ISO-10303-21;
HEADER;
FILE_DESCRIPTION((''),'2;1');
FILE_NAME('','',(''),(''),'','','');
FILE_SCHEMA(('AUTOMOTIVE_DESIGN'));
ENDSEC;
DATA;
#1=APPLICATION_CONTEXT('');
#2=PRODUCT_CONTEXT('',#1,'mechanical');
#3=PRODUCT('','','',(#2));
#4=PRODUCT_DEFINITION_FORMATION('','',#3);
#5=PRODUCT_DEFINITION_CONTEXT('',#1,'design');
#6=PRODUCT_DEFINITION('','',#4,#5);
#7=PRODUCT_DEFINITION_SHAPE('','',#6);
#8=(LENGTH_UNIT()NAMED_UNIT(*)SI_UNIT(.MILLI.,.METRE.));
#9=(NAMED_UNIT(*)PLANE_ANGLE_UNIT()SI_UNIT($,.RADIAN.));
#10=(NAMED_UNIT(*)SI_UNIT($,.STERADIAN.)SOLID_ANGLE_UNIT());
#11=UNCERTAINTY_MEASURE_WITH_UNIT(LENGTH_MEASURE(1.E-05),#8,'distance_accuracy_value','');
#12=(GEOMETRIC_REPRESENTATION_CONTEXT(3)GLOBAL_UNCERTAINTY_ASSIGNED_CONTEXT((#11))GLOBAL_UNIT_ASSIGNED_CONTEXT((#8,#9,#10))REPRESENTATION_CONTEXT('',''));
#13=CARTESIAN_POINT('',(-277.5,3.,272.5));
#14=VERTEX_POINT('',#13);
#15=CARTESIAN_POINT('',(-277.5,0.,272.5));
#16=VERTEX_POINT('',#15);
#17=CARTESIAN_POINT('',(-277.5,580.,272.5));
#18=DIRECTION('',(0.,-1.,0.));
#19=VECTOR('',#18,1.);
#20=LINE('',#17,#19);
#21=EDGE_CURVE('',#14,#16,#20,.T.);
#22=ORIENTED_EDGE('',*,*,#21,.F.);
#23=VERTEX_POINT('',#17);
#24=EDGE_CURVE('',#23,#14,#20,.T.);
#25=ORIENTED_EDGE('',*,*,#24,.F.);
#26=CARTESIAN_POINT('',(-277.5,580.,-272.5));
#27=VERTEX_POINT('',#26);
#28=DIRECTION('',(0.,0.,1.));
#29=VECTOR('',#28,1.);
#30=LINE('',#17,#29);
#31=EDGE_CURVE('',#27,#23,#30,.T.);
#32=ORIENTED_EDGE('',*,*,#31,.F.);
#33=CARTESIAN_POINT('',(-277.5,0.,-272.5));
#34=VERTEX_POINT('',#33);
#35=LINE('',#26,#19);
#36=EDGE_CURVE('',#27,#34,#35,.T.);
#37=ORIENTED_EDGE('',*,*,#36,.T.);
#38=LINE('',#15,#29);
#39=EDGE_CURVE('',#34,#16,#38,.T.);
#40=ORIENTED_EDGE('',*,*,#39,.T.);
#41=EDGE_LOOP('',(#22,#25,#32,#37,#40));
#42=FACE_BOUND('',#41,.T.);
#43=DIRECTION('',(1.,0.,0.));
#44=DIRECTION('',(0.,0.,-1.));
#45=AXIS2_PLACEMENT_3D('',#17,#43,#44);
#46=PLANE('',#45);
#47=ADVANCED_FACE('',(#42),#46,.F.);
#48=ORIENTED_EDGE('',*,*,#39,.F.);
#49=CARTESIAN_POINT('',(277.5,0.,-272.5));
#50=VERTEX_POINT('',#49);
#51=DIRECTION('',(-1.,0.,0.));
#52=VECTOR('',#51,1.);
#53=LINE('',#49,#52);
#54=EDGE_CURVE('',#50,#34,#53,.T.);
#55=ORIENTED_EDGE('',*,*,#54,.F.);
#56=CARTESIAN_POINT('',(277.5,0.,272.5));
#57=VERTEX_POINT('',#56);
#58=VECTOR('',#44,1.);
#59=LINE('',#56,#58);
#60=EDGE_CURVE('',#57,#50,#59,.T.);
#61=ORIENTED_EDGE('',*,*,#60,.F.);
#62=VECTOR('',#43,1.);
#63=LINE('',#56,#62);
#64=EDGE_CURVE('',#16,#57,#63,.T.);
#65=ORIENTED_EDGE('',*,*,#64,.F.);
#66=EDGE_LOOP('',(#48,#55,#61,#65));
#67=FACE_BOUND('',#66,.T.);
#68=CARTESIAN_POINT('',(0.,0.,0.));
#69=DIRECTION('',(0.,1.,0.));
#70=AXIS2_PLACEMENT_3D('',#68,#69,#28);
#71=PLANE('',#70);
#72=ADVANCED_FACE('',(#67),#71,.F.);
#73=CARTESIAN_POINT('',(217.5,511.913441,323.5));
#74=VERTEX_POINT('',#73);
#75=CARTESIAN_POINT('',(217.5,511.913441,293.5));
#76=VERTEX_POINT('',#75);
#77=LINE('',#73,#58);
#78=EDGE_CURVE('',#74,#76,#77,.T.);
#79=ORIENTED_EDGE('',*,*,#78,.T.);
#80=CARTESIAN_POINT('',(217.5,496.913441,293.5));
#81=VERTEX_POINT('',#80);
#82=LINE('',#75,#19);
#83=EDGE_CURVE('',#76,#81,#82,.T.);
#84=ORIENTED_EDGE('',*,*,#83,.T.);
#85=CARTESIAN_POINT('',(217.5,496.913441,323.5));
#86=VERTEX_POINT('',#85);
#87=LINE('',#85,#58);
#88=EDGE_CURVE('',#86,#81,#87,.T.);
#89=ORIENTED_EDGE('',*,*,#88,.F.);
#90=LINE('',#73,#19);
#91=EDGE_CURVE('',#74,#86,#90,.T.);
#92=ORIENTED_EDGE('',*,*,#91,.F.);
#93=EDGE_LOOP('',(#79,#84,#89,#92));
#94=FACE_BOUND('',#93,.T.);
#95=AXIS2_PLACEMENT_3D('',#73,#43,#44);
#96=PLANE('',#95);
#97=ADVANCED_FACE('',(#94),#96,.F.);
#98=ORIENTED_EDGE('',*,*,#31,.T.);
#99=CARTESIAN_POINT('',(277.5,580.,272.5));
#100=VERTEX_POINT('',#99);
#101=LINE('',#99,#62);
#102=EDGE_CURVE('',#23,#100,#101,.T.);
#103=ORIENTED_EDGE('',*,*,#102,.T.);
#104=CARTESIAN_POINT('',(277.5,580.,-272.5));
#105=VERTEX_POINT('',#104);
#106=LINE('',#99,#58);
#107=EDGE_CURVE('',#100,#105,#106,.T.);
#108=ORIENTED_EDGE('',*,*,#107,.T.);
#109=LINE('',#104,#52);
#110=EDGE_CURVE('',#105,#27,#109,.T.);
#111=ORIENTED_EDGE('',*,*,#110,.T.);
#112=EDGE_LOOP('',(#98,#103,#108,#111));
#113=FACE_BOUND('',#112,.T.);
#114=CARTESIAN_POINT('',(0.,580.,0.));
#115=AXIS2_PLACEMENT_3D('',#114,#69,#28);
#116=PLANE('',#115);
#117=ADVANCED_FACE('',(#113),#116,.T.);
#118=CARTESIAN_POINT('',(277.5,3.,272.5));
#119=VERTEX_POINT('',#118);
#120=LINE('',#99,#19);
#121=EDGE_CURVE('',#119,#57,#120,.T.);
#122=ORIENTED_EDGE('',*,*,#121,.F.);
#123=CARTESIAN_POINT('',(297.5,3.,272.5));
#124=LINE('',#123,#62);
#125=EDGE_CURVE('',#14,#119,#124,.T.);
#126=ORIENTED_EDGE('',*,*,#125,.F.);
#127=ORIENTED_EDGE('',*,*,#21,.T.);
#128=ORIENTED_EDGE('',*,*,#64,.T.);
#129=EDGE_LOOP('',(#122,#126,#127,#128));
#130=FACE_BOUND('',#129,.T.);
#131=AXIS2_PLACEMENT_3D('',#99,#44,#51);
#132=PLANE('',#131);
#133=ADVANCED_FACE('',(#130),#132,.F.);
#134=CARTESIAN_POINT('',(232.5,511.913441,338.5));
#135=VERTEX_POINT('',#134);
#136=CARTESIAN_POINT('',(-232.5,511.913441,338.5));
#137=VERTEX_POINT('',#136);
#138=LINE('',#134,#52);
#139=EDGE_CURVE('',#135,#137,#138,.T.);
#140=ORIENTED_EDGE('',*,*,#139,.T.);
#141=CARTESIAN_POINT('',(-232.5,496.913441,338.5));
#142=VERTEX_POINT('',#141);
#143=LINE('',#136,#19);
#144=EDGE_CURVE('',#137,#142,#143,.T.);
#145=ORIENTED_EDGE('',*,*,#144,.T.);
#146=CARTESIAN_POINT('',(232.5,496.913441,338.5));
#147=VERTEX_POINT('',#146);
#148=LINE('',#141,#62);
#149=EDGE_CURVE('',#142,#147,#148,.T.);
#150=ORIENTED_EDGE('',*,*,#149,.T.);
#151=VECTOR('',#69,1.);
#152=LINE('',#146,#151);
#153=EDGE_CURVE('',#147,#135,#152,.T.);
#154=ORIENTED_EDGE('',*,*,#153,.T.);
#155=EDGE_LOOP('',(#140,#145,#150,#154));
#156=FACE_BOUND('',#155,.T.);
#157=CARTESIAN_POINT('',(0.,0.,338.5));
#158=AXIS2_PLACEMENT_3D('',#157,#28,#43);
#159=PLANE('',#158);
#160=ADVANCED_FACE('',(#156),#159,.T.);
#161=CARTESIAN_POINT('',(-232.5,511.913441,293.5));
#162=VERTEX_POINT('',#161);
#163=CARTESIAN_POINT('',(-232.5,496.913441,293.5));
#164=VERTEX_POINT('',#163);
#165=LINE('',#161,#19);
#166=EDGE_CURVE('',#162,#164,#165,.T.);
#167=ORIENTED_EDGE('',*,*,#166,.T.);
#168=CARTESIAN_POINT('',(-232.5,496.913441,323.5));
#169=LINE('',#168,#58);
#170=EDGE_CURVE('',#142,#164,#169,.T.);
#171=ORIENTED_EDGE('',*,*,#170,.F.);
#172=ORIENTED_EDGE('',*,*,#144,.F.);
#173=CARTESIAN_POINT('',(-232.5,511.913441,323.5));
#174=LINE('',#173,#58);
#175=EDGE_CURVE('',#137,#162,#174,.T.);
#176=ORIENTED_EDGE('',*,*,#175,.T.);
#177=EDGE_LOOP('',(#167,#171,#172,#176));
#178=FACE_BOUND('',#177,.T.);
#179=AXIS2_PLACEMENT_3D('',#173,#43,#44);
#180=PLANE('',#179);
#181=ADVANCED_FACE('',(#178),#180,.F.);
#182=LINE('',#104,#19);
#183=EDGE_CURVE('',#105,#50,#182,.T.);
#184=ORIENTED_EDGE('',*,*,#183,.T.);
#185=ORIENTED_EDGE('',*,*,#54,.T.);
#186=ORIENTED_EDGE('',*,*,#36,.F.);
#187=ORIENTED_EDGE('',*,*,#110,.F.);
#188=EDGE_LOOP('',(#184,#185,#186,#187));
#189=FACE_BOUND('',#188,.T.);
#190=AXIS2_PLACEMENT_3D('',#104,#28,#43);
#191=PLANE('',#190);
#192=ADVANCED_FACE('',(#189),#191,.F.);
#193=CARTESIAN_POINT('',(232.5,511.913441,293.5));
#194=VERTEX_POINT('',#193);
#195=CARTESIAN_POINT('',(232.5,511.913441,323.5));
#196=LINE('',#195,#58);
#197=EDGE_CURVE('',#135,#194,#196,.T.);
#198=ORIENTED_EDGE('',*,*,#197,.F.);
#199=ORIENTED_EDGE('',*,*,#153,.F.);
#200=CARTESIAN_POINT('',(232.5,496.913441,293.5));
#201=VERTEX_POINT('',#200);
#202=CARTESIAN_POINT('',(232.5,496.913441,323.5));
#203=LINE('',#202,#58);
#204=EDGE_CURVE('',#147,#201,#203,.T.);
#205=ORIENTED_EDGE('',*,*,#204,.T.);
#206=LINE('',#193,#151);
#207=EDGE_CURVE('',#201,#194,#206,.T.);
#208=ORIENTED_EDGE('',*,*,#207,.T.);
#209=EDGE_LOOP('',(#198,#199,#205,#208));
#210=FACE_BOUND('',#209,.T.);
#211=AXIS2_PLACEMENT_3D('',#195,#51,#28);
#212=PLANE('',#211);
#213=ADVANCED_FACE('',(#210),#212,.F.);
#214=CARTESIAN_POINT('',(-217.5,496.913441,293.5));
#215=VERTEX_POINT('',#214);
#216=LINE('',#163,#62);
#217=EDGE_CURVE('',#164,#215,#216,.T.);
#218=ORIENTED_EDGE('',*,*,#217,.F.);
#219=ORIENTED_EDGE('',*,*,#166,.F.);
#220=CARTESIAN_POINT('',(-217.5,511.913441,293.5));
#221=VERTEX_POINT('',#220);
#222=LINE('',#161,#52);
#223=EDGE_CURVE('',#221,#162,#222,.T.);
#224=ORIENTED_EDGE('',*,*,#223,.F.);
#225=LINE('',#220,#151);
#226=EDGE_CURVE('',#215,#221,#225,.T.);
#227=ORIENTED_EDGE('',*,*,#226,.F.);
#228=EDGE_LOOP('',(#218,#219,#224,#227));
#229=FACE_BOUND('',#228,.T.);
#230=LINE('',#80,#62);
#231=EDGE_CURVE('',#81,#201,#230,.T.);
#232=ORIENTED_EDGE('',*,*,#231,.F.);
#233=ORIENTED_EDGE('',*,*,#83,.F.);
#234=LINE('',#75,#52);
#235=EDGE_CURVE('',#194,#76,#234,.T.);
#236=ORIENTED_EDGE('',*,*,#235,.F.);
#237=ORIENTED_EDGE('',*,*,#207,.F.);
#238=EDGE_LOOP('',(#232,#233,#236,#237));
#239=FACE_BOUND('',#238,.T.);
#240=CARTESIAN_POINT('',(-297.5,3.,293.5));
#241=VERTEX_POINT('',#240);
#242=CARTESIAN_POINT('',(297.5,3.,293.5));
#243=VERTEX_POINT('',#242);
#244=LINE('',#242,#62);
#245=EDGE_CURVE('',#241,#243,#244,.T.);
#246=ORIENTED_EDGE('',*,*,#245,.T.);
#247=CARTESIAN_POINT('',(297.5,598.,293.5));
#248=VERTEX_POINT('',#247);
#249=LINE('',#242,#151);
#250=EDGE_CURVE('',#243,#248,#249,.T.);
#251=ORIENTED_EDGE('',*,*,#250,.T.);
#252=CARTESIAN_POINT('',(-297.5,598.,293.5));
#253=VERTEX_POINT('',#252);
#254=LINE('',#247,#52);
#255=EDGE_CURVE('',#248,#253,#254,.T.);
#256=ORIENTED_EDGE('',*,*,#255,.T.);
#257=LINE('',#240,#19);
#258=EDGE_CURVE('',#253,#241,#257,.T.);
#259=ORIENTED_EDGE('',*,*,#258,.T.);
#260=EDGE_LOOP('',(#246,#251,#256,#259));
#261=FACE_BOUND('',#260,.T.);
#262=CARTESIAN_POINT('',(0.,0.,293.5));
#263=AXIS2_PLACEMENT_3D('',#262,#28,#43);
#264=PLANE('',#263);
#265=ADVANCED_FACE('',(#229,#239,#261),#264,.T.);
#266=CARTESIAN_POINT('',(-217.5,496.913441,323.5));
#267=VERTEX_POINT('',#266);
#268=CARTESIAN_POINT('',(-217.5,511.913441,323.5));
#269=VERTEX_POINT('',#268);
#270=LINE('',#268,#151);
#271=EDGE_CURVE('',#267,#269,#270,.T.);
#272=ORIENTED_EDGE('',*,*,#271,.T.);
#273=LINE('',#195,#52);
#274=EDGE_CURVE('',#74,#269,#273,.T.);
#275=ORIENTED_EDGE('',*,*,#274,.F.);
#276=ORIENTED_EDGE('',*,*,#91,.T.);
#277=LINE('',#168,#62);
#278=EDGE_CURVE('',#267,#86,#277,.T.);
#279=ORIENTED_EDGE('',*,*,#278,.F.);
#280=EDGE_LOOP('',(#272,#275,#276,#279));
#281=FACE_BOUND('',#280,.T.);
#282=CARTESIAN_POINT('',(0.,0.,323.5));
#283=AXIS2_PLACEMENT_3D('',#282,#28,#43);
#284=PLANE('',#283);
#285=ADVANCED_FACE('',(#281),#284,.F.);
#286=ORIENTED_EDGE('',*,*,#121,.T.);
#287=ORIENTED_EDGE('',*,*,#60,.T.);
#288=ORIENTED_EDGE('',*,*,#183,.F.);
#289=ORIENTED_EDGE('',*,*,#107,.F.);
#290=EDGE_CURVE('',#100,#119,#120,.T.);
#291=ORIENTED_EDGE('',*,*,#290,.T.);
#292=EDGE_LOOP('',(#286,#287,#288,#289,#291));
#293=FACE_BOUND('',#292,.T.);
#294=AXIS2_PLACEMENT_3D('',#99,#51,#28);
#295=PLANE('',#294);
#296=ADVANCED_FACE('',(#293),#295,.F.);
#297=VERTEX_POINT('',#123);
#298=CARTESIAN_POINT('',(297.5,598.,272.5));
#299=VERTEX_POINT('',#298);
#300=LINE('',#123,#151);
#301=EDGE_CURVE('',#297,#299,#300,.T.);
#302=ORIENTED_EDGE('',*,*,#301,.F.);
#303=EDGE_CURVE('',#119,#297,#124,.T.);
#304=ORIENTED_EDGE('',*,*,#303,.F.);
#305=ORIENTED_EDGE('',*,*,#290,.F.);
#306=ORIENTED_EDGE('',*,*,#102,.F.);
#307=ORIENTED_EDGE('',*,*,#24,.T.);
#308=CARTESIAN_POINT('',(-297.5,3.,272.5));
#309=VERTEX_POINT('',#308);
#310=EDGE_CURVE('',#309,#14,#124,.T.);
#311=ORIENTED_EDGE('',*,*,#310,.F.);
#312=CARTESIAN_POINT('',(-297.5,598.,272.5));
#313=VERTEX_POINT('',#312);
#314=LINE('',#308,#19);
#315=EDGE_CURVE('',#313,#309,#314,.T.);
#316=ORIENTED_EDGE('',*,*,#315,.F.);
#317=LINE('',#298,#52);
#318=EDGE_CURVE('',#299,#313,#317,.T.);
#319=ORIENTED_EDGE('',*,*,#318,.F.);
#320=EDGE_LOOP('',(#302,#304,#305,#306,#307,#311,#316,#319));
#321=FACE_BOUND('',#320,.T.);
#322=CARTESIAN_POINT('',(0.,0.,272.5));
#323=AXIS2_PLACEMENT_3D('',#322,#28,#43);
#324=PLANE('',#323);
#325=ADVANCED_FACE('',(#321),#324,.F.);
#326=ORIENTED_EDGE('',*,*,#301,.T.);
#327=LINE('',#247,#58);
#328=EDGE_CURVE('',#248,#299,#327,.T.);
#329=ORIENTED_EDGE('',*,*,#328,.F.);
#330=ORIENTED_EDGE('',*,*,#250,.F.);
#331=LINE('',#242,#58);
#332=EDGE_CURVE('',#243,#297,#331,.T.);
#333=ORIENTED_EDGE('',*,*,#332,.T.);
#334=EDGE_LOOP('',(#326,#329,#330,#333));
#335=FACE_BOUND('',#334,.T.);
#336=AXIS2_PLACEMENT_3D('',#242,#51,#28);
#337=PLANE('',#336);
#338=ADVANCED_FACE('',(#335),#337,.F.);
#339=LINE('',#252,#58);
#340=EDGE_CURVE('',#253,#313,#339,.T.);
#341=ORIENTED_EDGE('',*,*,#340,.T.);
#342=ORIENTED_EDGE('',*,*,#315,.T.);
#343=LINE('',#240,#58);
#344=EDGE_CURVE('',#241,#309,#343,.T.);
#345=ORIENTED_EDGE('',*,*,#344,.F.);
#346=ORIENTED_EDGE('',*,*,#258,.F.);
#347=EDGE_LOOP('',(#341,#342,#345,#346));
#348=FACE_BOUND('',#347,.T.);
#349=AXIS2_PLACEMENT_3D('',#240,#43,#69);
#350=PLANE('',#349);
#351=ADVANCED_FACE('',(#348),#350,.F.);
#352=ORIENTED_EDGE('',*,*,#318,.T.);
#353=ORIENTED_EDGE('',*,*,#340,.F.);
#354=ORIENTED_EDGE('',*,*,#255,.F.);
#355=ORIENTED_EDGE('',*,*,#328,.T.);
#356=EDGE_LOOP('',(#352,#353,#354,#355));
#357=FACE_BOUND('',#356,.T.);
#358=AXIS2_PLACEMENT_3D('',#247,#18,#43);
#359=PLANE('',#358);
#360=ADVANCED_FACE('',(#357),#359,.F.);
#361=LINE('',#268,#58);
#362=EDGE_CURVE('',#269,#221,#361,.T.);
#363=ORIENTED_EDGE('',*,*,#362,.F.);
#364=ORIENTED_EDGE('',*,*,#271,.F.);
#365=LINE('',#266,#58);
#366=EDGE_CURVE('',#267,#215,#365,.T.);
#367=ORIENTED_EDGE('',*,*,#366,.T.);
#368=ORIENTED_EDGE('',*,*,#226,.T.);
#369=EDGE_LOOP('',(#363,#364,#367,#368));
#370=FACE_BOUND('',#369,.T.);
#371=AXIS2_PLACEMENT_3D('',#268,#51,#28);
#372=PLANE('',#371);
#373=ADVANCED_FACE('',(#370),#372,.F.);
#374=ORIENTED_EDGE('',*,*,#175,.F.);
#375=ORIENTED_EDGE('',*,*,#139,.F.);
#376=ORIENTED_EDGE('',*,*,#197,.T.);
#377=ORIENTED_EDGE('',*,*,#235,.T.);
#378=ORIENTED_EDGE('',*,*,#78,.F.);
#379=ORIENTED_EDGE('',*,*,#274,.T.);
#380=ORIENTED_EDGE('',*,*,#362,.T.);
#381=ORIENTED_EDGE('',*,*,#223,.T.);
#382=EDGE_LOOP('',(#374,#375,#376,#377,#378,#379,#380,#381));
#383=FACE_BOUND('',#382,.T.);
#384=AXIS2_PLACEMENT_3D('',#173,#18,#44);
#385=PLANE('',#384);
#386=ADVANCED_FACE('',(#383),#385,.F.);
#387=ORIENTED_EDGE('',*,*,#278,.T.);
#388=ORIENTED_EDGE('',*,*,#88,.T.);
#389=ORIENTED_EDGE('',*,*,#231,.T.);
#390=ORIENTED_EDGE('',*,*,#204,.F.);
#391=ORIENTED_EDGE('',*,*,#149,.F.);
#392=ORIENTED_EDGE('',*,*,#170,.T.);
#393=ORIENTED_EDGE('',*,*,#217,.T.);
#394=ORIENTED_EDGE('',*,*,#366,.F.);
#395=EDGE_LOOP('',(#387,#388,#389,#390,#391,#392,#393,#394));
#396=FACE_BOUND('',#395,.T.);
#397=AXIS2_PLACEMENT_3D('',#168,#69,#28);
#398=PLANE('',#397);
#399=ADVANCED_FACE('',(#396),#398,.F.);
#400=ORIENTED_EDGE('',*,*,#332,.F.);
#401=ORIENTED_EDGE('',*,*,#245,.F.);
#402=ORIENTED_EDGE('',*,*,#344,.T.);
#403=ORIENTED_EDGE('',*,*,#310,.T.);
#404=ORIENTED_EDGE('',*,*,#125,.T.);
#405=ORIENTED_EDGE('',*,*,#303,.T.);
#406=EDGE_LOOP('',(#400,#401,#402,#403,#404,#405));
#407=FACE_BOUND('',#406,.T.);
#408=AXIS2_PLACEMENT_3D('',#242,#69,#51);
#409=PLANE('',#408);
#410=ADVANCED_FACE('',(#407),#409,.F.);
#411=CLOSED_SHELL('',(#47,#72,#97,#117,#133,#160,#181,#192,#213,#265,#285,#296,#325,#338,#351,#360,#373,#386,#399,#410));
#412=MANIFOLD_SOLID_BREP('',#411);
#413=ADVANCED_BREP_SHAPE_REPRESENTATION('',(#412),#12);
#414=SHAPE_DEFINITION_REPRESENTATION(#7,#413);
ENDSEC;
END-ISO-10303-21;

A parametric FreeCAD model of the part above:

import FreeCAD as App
import Part
import Sketcher
from FreeCAD import Vector


def add_polygon(sketch, points):
    """Adds a closed chain of lines whose ends are joined by coincident constraints."""
    first, n = sketch.GeometryCount, len(points)
    for a, b in zip(points, points[1:] + points[:1]):
        sketch.addGeometry(Part.LineSegment(App.Vector(*a, 0), App.Vector(*b, 0)), False)
    for i in range(n):
        sketch.addConstraint(Sketcher.Constraint("Coincident", first + i, 2, first + (i + 1) % n, 1))

doc = App.newDocument("Part")
params = doc.addObject("Spreadsheet::Sheet", "Params")
for row, (alias, value) in enumerate([
    ("sketch1_width", "555 mm"),
    ("sketch1_height", "545 mm"),
    ("pad1_length", "580 mm"),
    ("sketch2_width", "595 mm"),
    ("pad2_length", "21 mm"),
    ("sketch3_width", "15 mm"),
    ("pad3_length", "30 mm"),
    ("sketch4_width", "465 mm"),
    ("sketch4_height", "15 mm"),
    ("pad4_length", "15 mm"),
], start=1):
    params.set(f"A{row}", alias)
    params.set(f"B{row}", "=" + value)
    params.setAlias(f"B{row}", alias)

body = doc.addObject("PartDesign::Body", "Body")

# Sketch on XZ plane
sketch1 = body.newObject("Sketcher::SketchObject", "Sketch")
sketch1.AttachmentSupport = (doc.getObject("XZ_Plane"), [""])
sketch1.MapMode = "FlatFace"
add_polygon(sketch1, [(-277.5, -272.5), (-277.5, 272.5), (277.5, 272.5), (277.5, -272.5)])  # lines 0-3
sketch1.addConstraint([
    Sketcher.Constraint("Vertical", 0),
    Sketcher.Constraint("Horizontal", 1),
    Sketcher.Constraint("Vertical", 2),
    Sketcher.Constraint("Horizontal", 3),
    Sketcher.Constraint("Symmetric", 0, 2, 2, 2, -1, 1),
    Sketcher.Constraint("DistanceX", 1, 1, 1, 2, 555.0),
    Sketcher.Constraint("DistanceY", 0, 1, 0, 2, 545.0),
])
sketch1.setExpression("Constraints[9]", "Params.sketch1_width")
sketch1.setExpression("Constraints[10]", "Params.sketch1_height")
pad1 = body.newObject("PartDesign::Pad", "Pad")
pad1.Profile = sketch1
pad1.setExpression("Length", "Params.pad1_length")
pad1.Reversed = True

# Sketch on XY plane
sketch2 = body.newObject("Sketcher::SketchObject", "Sketch001")
sketch2.AttachmentSupport = (doc.getObject("XY_Plane"), [""])
sketch2.MapMode = "FlatFace"
sketch2.AttachmentOffset = App.Placement(Vector(0, 0, 272.5), App.Rotation())
add_polygon(sketch2, [(-297.5, 598), (-297.5, 3), (297.5, 3), (297.5, 598)])  # lines 0-3
sketch2.addConstraint([
    Sketcher.Constraint("Vertical", 0),
    Sketcher.Constraint("Horizontal", 1),
    Sketcher.Constraint("Vertical", 2),
    Sketcher.Constraint("Horizontal", 3),
    Sketcher.Constraint("Equal", 3, 0),
    Sketcher.Constraint("DistanceX", 1, 1, 1, 2, 595.0),
    Sketcher.Constraint("DistanceY", -1, 1, 0, 2, 3.0),
    Sketcher.Constraint("DistanceX", 0, 2, -1, 1, 297.5),
])
sketch2.setExpression("Constraints[9]", "Params.sketch2_width")
pad2 = body.newObject("PartDesign::Pad", "Pad001")
pad2.Profile = sketch2
pad2.setExpression("Length", "Params.pad2_length")

# Sketch on XY plane
sketch3 = body.newObject("Sketcher::SketchObject", "Sketch002")
sketch3.AttachmentSupport = (doc.getObject("XY_Plane"), [""])
sketch3.MapMode = "FlatFace"
sketch3.AttachmentOffset = App.Placement(Vector(0, 0, 293.5), App.Rotation())
add_polygon(sketch3, [(-232.5, 511.913441), (-232.5, 496.913441), (-217.5, 496.913441), (-217.5, 511.913441)])  # lines 0-3
add_polygon(sketch3, [(217.5, 511.913441), (217.5, 496.913441), (232.5, 496.913441), (232.5, 511.913441)])  # lines 4-7
sketch3.addConstraint([
    Sketcher.Constraint("Vertical", 0),
    Sketcher.Constraint("Horizontal", 1),
    Sketcher.Constraint("Vertical", 2),
    Sketcher.Constraint("Horizontal", 3),
    Sketcher.Constraint("Vertical", 4),
    Sketcher.Constraint("Horizontal", 5),
    Sketcher.Constraint("Vertical", 6),
    Sketcher.Constraint("Horizontal", 7),
    Sketcher.Constraint("Symmetric", 1, 2, 4, 2, -2),
    Sketcher.Constraint("Symmetric", 3, 2, 6, 2, -2),
    Sketcher.Constraint("Equal", 7, 0),
    Sketcher.Constraint("DistanceX", 1, 1, 1, 2, 15.0),
    Sketcher.Constraint("DistanceX", 1, 2, 4, 2, 435.0),
    Sketcher.Constraint("DistanceY", -1, 1, 0, 2, 496.913441),
])
sketch3.setExpression("Constraints[19]", "Params.sketch3_width")
pad3 = body.newObject("PartDesign::Pad", "Pad002")
pad3.Profile = sketch3
pad3.setExpression("Length", "Params.pad3_length")

# Sketch on XY plane
sketch4 = body.newObject("Sketcher::SketchObject", "Sketch003")
sketch4.AttachmentSupport = (doc.getObject("XY_Plane"), [""])
sketch4.MapMode = "FlatFace"
sketch4.AttachmentOffset = App.Placement(Vector(0, 0, 323.5), App.Rotation())
add_polygon(sketch4, [(-232.5, 511.913441), (-232.5, 496.913441), (232.5, 496.913441), (232.5, 511.913441)])  # lines 0-3
sketch4.addConstraint([
    Sketcher.Constraint("Vertical", 0),
    Sketcher.Constraint("Horizontal", 1),
    Sketcher.Constraint("Vertical", 2),
    Sketcher.Constraint("Horizontal", 3),
    Sketcher.Constraint("DistanceX", 1, 1, 1, 2, 465.0),
    Sketcher.Constraint("DistanceY", 0, 2, 0, 1, 15.0),
    Sketcher.Constraint("DistanceX", 0, 2, -1, 1, 232.5),
    Sketcher.Constraint("DistanceY", -1, 1, 0, 2, 496.913441),
])
sketch4.setExpression("Constraints[8]", "Params.sketch4_width")
sketch4.setExpression("Constraints[9]", "Params.sketch4_height")
pad4 = body.newObject("PartDesign::Pad", "Pad003")
pad4.Profile = sketch4
pad4.setExpression("Length", "Params.pad4_length")

doc.recompute()
